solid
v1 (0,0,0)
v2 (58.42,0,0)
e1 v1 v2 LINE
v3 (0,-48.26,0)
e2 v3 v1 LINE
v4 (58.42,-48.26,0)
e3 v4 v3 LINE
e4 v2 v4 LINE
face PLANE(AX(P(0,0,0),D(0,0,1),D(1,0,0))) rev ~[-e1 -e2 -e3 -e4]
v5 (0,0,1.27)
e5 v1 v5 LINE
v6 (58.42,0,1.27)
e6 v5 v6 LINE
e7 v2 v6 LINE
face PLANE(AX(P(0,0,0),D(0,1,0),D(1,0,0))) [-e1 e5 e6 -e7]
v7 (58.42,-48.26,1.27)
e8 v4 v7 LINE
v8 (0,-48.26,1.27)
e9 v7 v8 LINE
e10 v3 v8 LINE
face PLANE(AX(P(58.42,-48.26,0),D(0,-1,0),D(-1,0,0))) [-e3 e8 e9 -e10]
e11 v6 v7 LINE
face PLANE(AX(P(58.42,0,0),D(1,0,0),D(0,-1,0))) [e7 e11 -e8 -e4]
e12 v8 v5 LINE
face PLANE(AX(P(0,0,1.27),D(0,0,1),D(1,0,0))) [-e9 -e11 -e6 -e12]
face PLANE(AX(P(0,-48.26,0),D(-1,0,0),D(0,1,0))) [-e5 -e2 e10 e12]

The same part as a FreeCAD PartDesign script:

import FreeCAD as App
import Part
import Sketcher

V = App.Vector
Q = App.Units.Quantity


def add_polygon(sketch, points):
    """Adds a closed chain of lines whose ends are joined by coincident constraints."""
    first, n = sketch.GeometryCount, len(points)
    for a, b in zip(points, points[1:] + points[:1]):
        sketch.addGeometry(Part.LineSegment(App.Vector(*a, 0), App.Vector(*b, 0)), False)
    for i in range(n):
        sketch.addConstraint(Sketcher.Constraint("Coincident", first + i, 2, first + (i + 1) % n, 1))

doc = App.newDocument("Part")
body = doc.addObject("PartDesign::Body", "Body")

sketch1 = body.newObject("Sketcher::SketchObject", "Sketch")
sketch1.AttachmentSupport = (doc.getObject("XY_Plane"), [""])
sketch1.MapMode = "FlatFace"
add_polygon(sketch1, [(58, 0), (0, 0), (0, -48), (58, -48)])
sketch1.addConstraint(Sketcher.Constraint("Horizontal", 0))
sketch1.addConstraint(Sketcher.Constraint("Vertical", 1))
sketch1.addConstraint(Sketcher.Constraint("Horizontal", 2))
sketch1.addConstraint(Sketcher.Constraint("Vertical", 3))
sketch1.addConstraint(Sketcher.Constraint("Coincident", 0, 2, -1, 1))
sketch1.addConstraint(Sketcher.Constraint("DistanceX", 0, 2, 0, 1, Q("2.3 in")))
sketch1.addConstraint(Sketcher.Constraint("DistanceY", 1, 2, 1, 1, Q("1.9 in")))
pad1 = body.newObject("PartDesign::Pad", "Pad")
pad1.Profile = sketch1
pad1.Length = Q("0.05 in")

doc.recompute()
